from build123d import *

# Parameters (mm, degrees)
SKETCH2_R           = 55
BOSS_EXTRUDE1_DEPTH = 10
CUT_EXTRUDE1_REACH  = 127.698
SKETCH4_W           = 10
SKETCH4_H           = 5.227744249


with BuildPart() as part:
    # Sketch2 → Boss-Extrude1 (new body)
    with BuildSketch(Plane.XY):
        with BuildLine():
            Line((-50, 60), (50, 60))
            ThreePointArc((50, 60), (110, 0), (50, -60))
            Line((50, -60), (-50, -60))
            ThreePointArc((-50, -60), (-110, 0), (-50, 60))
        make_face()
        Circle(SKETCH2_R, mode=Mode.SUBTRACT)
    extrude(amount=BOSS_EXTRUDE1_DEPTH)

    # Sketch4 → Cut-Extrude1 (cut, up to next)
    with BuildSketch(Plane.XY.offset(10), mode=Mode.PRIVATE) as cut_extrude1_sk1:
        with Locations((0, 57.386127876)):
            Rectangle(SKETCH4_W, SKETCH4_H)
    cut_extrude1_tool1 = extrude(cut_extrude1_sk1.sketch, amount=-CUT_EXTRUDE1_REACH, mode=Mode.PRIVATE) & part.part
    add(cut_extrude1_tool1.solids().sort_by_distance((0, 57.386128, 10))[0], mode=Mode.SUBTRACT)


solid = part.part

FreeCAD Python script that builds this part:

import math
import FreeCAD as App
import Part
import Sketcher

V = App.Vector
Q = App.Units.Quantity

doc = App.newDocument("Part")
body = doc.addObject("PartDesign::Body", "Body")

# Sketch on XY plane
sketch1 = body.newObject("Sketcher::SketchObject", "Sketch")
sketch1.AttachmentSupport = (doc.getObject("XY_Plane"), [""])
sketch1.MapMode = "FlatFace"
sketch1.addGeometry(Part.LineSegment(V(50, 60, 0), V(-50, 60, 0)), False)
sketch1.addGeometry(Part.ArcOfCircle(Part.Circle(V(-50, 0, 0), V(0, 0, 1), 60), math.radians(90), math.radians(270)), False)
sketch1.addGeometry(Part.LineSegment(V(-50, -60, 0), V(50, -60, 0)), False)
sketch1.addGeometry(Part.ArcOfCircle(Part.Circle(V(50, 0, 0), V(0, 0, 1), 60), math.radians(-90), math.radians(90)), False)
sketch1.addGeometry(Part.Circle(V(0, 0, 0), V(0, 0, 1), 55), False)
sketch1.addConstraint(Sketcher.Constraint("Tangent", 0, 2, 1, 1))
sketch1.addConstraint(Sketcher.Constraint("Tangent", 1, 2, 2, 1))
sketch1.addConstraint(Sketcher.Constraint("Tangent", 2, 2, 3, 1))
sketch1.addConstraint(Sketcher.Constraint("Tangent", 3, 2, 0, 1))
sketch1.addConstraint(Sketcher.Constraint("Horizontal", 0))
sketch1.addConstraint(Sketcher.Constraint("Horizontal", 2))
sketch1.addConstraint(Sketcher.Constraint("Coincident", 4, 3, -1, 1))
sketch1.addConstraint(Sketcher.Constraint("Symmetric", 1, 3, 3, 3, -1, 1))
sketch1.addConstraint(Sketcher.Constraint("Diameter", 4, Q("110 mm")))
sketch1.addConstraint(Sketcher.Constraint("Radius", 1, Q("60 mm")))
sketch1.addConstraint(Sketcher.Constraint("DistanceX", 0, 2, 0, 1, Q("100 mm")))
pad1 = body.newObject("PartDesign::Pad", "Pad")
pad1.Profile = sketch1
pad1.Length = 10

# Sketch on XY plane
sketch2 = body.newObject("Sketcher::SketchObject", "Sketch001")
sketch2.AttachmentSupport = (doc.getObject("XY_Plane"), [""])
sketch2.MapMode = "FlatFace"
sketch2.AttachmentOffset = App.Placement(V(0, 0, 10), App.Rotation())
sketch2.addGeometry(Part.LineSegment(V(-5, 60, 0), V(-5, 55, 0)), False)
sketch2.addGeometry(Part.LineSegment(V(-5, 55, 0), V(5, 55, 0)), False)
sketch2.addGeometry(Part.LineSegment(V(5, 55, 0), V(5, 60, 0)), False)
sketch2.addGeometry(Part.LineSegment(V(5, 60, 0), V(-5, 60, 0)), False)
sketch2.addConstraint(Sketcher.Constraint("Coincident", 0, 2, 1, 1))
sketch2.addConstraint(Sketcher.Constraint("Coincident", 1, 2, 2, 1))
sketch2.addConstraint(Sketcher.Constraint("Coincident", 2, 2, 3, 1))
sketch2.addConstraint(Sketcher.Constraint("Coincident", 3, 2, 0, 1))
sketch2.addConstraint(Sketcher.Constraint("Vertical", 0))
sketch2.addConstraint(Sketcher.Constraint("Horizontal", 1))
sketch2.addConstraint(Sketcher.Constraint("Vertical", 2))
sketch2.addConstraint(Sketcher.Constraint("Horizontal", 3))
sketch2.addConstraint(Sketcher.Constraint("DistanceX", 1, 1, 1, 2, Q("10 mm")))
sketch2.addConstraint(Sketcher.Constraint("DistanceX", 0, 2, -1, 1, Q("5 mm")))
sketch2.addConstraint(Sketcher.Constraint("DistanceY", -1, 1, 2, 2, Q("60 mm")))
sketch2.addConstraint(Sketcher.Constraint("DistanceY", 0, 2, 0, 1, Q("5.227744 mm")))
pocket1 = body.newObject("PartDesign::Pocket", "Pocket")
pocket1.Profile = sketch2
pocket1.Type = "UpToFirst"

doc.recompute()
